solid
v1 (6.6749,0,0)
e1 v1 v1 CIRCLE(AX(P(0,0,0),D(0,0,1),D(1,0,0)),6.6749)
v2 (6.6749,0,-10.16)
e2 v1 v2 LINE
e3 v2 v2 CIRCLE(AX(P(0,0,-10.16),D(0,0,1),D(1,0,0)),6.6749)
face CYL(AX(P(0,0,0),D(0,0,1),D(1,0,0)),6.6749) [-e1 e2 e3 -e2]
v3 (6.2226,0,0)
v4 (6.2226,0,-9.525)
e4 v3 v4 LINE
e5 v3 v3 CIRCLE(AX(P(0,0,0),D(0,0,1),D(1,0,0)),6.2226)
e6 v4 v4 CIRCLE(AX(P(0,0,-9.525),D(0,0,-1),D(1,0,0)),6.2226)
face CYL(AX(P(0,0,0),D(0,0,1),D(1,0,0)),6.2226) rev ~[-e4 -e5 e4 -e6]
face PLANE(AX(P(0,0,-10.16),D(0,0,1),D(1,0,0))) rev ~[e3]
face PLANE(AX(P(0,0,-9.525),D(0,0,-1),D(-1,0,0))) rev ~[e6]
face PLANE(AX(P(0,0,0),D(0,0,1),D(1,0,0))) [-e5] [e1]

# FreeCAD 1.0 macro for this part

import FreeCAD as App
import Part
import Sketcher

V = App.Vector
Q = App.Units.Quantity

doc = App.newDocument("Part")
body = doc.addObject("PartDesign::Body", "Body")

# Sketch on XY plane
sketch1 = body.newObject("Sketcher::SketchObject", "Sketch")
sketch1.AttachmentSupport = (doc.getObject("XY_Plane"), [""])
sketch1.MapMode = "FlatFace"
sketch1.addGeometry([
    Part.Circle(V(0, 0, 0), V(0, 0, 1), 7),
    Part.Circle(V(0, 0, 0), V(0, 0, 1), 6),
], False)
sketch1.addConstraint([
    Sketcher.Constraint("Coincident", 0, 3, -1, 1),
    Sketcher.Constraint("Coincident", 1, 3, -1, 1),
    Sketcher.Constraint("Diameter", 0, 13.3498),
    Sketcher.Constraint("Diameter", 1, 12.4452),
])
pad1 = body.newObject("PartDesign::Pad", "Pad")
pad1.Profile = sketch1
pad1.Length = Q("0.4 in")
pad1.Reversed = True

# Sketch on XY plane
sketch2 = body.newObject("Sketcher::SketchObject", "Sketch001")
sketch2.AttachmentSupport = (doc.getObject("XY_Plane"), [""])
sketch2.MapMode = "FlatFace"
sketch2.AttachmentOffset = App.Placement(V(0, 0, -0.4 * 25.4), App.Rotation())
sketch2.addGeometry(Part.Circle(V(0, 0, 0), V(0, 0, 1), 6), False)
sketch2.addConstraint([
    Sketcher.Constraint("Coincident", 0, 3, -1, 1),
    Sketcher.Constraint("Diameter", 0, 12.4452),
])
pad2 = body.newObject("PartDesign::Pad", "Pad001")
pad2.Profile = sketch2
pad2.Length = Q("0.025 in")

doc.recompute()
